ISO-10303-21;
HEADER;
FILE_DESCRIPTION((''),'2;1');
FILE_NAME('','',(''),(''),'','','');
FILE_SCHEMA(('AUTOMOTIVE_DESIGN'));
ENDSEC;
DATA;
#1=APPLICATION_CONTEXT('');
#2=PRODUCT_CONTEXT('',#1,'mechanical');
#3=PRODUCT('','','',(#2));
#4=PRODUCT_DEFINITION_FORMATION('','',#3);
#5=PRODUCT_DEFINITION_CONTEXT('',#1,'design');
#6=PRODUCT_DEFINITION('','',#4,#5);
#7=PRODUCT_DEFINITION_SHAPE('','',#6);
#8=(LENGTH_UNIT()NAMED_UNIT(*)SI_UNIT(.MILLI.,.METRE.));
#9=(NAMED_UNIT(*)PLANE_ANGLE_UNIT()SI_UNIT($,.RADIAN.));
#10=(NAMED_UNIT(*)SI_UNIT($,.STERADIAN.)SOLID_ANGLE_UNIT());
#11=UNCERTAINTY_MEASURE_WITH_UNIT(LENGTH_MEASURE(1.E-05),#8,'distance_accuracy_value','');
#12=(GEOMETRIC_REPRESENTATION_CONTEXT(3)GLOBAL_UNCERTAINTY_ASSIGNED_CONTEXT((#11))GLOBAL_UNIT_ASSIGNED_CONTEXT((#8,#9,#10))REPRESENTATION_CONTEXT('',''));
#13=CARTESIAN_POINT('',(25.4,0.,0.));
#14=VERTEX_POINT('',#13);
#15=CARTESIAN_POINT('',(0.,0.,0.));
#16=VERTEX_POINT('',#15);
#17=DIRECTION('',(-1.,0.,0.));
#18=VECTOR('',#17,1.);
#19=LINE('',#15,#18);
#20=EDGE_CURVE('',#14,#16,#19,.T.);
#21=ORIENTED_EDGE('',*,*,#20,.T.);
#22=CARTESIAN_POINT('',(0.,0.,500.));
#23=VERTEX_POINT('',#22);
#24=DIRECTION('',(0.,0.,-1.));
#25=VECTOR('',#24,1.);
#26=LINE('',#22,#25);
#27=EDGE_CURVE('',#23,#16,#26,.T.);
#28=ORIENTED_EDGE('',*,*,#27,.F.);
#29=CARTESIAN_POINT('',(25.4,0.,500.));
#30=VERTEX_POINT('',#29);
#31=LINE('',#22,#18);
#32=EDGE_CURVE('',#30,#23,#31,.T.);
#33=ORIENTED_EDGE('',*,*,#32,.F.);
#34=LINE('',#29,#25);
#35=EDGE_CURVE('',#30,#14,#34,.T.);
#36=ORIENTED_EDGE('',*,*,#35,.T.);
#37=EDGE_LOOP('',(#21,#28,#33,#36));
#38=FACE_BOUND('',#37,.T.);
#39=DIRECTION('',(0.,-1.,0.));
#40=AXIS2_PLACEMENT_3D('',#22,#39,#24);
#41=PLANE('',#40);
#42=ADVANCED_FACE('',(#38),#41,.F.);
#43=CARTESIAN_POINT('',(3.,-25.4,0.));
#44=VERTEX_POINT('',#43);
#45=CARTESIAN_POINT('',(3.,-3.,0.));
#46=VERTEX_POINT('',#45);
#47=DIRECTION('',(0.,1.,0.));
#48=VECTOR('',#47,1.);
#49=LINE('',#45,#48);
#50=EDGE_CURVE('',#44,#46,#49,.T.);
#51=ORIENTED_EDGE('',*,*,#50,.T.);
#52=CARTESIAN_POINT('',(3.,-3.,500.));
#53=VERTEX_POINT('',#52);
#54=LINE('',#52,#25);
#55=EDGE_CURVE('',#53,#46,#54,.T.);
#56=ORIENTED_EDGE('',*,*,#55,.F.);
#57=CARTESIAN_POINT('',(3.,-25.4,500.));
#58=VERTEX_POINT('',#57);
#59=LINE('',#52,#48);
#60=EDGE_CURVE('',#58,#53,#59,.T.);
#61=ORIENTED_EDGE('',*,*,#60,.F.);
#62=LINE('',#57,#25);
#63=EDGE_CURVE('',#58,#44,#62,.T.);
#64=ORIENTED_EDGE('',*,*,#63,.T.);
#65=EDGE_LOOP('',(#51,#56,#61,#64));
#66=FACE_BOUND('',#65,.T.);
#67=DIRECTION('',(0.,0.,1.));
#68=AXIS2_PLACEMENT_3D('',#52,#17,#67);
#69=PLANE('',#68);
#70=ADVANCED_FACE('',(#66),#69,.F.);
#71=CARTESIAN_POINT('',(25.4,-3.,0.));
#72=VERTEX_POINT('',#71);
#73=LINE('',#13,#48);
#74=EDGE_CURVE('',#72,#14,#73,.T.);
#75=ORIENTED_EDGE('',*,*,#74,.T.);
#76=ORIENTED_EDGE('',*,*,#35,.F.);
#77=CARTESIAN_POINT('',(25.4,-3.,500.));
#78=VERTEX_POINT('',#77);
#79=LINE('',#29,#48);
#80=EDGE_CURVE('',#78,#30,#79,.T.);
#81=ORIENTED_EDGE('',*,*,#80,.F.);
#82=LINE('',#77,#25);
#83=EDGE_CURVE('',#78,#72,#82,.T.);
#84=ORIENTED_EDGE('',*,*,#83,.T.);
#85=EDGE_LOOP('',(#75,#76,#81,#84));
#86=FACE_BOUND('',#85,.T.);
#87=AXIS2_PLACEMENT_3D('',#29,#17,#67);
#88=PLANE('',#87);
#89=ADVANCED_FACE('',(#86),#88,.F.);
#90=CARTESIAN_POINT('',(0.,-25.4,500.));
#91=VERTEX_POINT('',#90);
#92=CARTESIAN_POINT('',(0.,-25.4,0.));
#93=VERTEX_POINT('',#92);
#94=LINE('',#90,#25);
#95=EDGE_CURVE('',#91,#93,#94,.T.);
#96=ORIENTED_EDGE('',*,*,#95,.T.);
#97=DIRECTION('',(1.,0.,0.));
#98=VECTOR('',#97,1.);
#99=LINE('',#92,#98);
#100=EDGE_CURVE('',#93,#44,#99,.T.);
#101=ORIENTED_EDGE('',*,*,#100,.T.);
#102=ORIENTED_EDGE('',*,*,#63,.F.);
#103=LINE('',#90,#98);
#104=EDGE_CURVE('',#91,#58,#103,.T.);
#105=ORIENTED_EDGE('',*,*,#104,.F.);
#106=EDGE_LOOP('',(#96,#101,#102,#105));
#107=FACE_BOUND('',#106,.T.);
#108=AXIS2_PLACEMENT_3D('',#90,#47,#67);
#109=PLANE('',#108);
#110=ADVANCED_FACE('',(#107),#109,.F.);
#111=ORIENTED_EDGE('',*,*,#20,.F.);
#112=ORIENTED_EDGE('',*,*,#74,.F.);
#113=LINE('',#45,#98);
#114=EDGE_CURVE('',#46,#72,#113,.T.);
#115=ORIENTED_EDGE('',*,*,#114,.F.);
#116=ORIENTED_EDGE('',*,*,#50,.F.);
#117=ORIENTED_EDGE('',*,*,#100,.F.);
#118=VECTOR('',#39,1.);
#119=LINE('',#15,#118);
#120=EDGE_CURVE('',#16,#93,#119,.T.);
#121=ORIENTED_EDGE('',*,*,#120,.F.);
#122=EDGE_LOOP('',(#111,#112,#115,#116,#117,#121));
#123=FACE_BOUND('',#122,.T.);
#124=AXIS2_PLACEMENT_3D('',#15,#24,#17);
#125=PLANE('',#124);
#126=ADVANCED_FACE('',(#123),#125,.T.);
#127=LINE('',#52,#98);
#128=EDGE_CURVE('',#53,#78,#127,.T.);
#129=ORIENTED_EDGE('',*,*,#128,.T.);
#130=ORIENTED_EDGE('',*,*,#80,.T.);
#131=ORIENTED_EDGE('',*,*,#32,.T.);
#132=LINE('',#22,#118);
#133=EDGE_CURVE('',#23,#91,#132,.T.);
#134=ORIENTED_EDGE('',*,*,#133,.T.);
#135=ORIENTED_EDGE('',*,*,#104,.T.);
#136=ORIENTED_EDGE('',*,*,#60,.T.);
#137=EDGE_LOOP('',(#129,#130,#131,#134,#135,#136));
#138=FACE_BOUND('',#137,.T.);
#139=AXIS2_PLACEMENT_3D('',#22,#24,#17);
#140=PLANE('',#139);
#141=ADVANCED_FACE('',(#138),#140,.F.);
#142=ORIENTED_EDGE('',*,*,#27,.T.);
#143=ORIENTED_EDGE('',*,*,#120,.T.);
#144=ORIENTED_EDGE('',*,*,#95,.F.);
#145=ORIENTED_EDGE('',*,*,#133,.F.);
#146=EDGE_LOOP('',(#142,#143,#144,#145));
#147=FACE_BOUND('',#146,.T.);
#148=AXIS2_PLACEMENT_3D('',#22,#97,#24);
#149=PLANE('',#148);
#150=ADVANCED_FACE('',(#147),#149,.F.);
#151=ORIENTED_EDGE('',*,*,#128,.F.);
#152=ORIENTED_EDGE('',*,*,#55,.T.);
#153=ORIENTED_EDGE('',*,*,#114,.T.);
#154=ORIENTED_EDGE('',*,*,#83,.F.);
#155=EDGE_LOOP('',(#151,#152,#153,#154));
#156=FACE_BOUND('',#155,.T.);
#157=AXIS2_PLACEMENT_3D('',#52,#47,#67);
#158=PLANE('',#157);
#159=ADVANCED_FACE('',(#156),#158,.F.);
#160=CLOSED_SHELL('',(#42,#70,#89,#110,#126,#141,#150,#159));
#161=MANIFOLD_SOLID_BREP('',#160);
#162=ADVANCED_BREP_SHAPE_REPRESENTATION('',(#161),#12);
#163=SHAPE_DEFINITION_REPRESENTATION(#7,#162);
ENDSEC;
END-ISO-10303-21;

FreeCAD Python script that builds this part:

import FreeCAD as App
import Part
import Sketcher

V = App.Vector

doc = App.newDocument("Part")
body = doc.addObject("PartDesign::Body", "Body")

# Sketch on XY plane
sketch1 = body.newObject("Sketcher::SketchObject", "Sketch")
sketch1.AttachmentSupport = (doc.getObject("XY_Plane"), [""])
sketch1.MapMode = "FlatFace"
sketch1.addGeometry(Part.LineSegment(V(0, 0, 0), V(0, -25.4, 0)), False)
sketch1.addGeometry(Part.LineSegment(V(0, -25.4, 0), V(3, -25.4, 0)), False)
sketch1.addGeometry(Part.LineSegment(V(3, -25.4, 0), V(3, -3, 0)), False)
sketch1.addGeometry(Part.LineSegment(V(3, -3, 0), V(25.4, -3, 0)), False)
sketch1.addGeometry(Part.LineSegment(V(25.4, -3, 0), V(25.4, 0, 0)), False)
sketch1.addGeometry(Part.LineSegment(V(25.4, 0, 0), V(0, 0, 0)), False)
sketch1.addConstraint(Sketcher.Constraint("Coincident", 0, 2, 1, 1))
sketch1.addConstraint(Sketcher.Constraint("Coincident", 1, 2, 2, 1))
sketch1.addConstraint(Sketcher.Constraint("Coincident", 2, 2, 3, 1))
sketch1.addConstraint(Sketcher.Constraint("Coincident", 3, 2, 4, 1))
sketch1.addConstraint(Sketcher.Constraint("Coincident", 4, 2, 5, 1))
sketch1.addConstraint(Sketcher.Constraint("Coincident", 5, 2, 0, 1))
sketch1.addConstraint(Sketcher.Constraint("Vertical", 0))
sketch1.addConstraint(Sketcher.Constraint("Horizontal", 1))
sketch1.addConstraint(Sketcher.Constraint("Vertical", 2))
sketch1.addConstraint(Sketcher.Constraint("Horizontal", 3))
sketch1.addConstraint(Sketcher.Constraint("Vertical", 4))
sketch1.addConstraint(Sketcher.Constraint("Horizontal", 5))
sketch1.addConstraint(Sketcher.Constraint("Coincident", 5, 2, -1, 1))
sketch1.addConstraint(Sketcher.Constraint("Equal", 5, 0))
sketch1.addConstraint(Sketcher.Constraint("Equal", 3, 2))
sketch1.addConstraint(Sketcher.Constraint("DistanceX", 1, 1, 1, 2, 3.0))
sketch1.addConstraint(Sketcher.Constraint("DistanceX", 3, 1, 3, 2, 22.4))
pad1 = body.newObject("PartDesign::Pad", "Pad")
pad1.Profile = sketch1
pad1.Length = 500

doc.recompute()
